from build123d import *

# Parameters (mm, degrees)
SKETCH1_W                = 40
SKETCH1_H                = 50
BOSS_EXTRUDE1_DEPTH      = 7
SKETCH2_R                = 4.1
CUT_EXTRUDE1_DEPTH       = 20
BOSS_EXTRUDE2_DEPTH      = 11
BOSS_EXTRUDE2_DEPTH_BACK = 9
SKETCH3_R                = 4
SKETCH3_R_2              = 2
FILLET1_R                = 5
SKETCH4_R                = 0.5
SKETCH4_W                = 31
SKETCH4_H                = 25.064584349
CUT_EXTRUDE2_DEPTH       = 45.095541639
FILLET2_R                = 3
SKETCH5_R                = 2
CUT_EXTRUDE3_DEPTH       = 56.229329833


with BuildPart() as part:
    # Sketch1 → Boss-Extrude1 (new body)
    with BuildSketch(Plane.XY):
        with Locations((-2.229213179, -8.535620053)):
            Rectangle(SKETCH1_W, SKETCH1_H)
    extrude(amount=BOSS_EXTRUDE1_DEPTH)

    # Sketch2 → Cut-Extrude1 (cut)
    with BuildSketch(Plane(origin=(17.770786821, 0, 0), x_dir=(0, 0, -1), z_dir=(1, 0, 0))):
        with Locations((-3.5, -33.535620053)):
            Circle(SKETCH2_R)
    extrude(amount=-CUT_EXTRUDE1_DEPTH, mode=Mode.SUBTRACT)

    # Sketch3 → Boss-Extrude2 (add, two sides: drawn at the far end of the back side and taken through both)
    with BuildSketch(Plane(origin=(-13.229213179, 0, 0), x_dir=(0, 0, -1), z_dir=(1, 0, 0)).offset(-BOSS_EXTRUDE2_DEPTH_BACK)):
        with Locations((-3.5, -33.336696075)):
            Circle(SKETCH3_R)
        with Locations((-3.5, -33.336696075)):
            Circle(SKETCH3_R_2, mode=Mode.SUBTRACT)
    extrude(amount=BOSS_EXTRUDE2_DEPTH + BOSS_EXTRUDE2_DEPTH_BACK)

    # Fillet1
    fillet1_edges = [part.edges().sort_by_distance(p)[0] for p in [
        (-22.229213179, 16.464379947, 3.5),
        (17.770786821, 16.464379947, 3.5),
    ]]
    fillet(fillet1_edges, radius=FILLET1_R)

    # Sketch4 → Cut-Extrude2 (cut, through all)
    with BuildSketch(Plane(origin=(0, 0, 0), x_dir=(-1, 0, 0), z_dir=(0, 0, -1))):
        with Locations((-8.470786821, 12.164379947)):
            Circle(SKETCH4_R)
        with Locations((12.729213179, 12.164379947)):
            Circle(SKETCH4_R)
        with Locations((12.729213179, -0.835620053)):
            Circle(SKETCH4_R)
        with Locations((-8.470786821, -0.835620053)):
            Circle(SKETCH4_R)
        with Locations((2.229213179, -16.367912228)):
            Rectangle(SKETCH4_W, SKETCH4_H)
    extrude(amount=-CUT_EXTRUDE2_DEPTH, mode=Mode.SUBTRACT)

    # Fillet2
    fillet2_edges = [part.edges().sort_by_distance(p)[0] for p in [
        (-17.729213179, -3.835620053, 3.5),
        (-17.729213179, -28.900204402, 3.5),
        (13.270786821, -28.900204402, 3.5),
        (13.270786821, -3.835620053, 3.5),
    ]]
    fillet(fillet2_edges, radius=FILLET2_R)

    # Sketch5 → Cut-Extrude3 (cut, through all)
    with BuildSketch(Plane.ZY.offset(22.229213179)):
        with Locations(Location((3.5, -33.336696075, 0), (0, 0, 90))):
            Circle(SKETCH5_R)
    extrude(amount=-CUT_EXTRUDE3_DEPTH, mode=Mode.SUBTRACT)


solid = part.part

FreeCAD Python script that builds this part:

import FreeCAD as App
import Part
import Sketcher

V = App.Vector
Q = App.Units.Quantity


def edges_at(feature, points):
    """Names of the edges that pass closest to the given points."""
    edges = feature.Shape.Edges
    near = lambda p: min(range(len(edges)), key=lambda i: edges[i].distToShape(Part.Vertex(*p))[0])
    return sorted({f"Edge{near(p) + 1}" for p in points})


def add_polygon(sketch, points):
    """Adds a closed chain of lines whose ends are joined by coincident constraints."""
    first, n = sketch.GeometryCount, len(points)
    for a, b in zip(points, points[1:] + points[:1]):
        sketch.addGeometry(Part.LineSegment(App.Vector(*a, 0), App.Vector(*b, 0)), False)
    for i in range(n):
        sketch.addConstraint(Sketcher.Constraint("Coincident", first + i, 2, first + (i + 1) % n, 1))

doc = App.newDocument("Part")
body = doc.addObject("PartDesign::Body", "Body")

# Sketch on XY plane
sketch1 = body.newObject("Sketcher::SketchObject", "Sketch")
sketch1.AttachmentSupport = (doc.getObject("XY_Plane"), [""])
sketch1.MapMode = "FlatFace"
add_polygon(sketch1, [(-22, 16), (-22, -34), (18, -34), (18, 16)])  # lines 0-3
sketch1.addConstraint(Sketcher.Constraint("Vertical", 0))
sketch1.addConstraint(Sketcher.Constraint("Horizontal", 1))
sketch1.addConstraint(Sketcher.Constraint("Vertical", 2))
sketch1.addConstraint(Sketcher.Constraint("Horizontal", 3))
sketch1.addConstraint(Sketcher.Constraint("DistanceX", 1, 1, 1, 2, Q("40 mm")))
sketch1.addConstraint(Sketcher.Constraint("DistanceY", 0, 2, 0, 1, Q("50 mm")))
sketch1.addConstraint(Sketcher.Constraint("DistanceY", 0, 2, -1, 1, Q("33.53562 mm")))
sketch1.addConstraint(Sketcher.Constraint("DistanceX", 0, 2, -1, 1, Q("22.229213 mm")))
pad1 = body.newObject("PartDesign::Pad", "Pad")
pad1.Profile = sketch1
pad1.Length = 7

# Sketch on YZ plane
sketch2 = body.newObject("Sketcher::SketchObject", "Sketch001")
sketch2.AttachmentSupport = (doc.getObject("YZ_Plane"), [""])
sketch2.MapMode = "FlatFace"
sketch2.AttachmentOffset = App.Placement(V(0, 0, 17.770787), App.Rotation())
sketch2.addGeometry(Part.Circle(V(-33.5, 3.5, 0), V(0, 0, 1), 4.1), False)
sketch2.addConstraint(Sketcher.Constraint("Diameter", 0, Q("8.2 mm")))
sketch2.addConstraint(Sketcher.Constraint("DistanceY", -1, 1, 0, 3, Q("3.5 mm")))
sketch2.addConstraint(Sketcher.Constraint("DistanceX", 0, 3, -1, 1, Q("33.53562 mm")))
pocket1 = body.newObject("PartDesign::Pocket", "Pocket")
pocket1.Profile = sketch2
pocket1.Length = 20

# Sketch on YZ plane
sketch3 = body.newObject("Sketcher::SketchObject", "Sketch002")
sketch3.AttachmentSupport = (doc.getObject("YZ_Plane"), [""])
sketch3.MapMode = "FlatFace"
sketch3.AttachmentOffset = App.Placement(V(0, 0, -13.229213), App.Rotation())
sketch3.addGeometry(Part.Circle(V(-33.3, 3.5, 0), V(0, 0, 1), 4), False)
sketch3.addGeometry(Part.Circle(V(-33.3, 3.5, 0), V(0, 0, 1), 2), False)
sketch3.addConstraint(Sketcher.Constraint("Coincident", 1, 3, 0, 3))
sketch3.addConstraint(Sketcher.Constraint("Diameter", 0, Q("8 mm")))
sketch3.addConstraint(Sketcher.Constraint("Diameter", 1, Q("4 mm")))
sketch3.addConstraint(Sketcher.Constraint("DistanceY", -1, 1, 0, 3, Q("3.5 mm")))
sketch3.addConstraint(Sketcher.Constraint("DistanceX", 0, 3, -1, 1, Q("33.336696 mm")))
pad2 = body.newObject("PartDesign::Pad", "Pad001")
pad2.Profile = sketch3
pad2.Type = "TwoLengths"
pad2.Length = 11
pad2.Length2 = 9
doc.recompute()

fillet = body.newObject("PartDesign::Fillet", "Fillet")
fillet.Base = (pad2, edges_at(pad2, [(-22.229, 16.464, 3.5), (17.771, 16.464, 3.5)]))
fillet.Radius = 5

# Sketch on XY plane
sketch4 = body.newObject("Sketcher::SketchObject", "Sketch003")
sketch4.AttachmentSupport = (doc.getObject("XY_Plane"), [""])
sketch4.MapMode = "FlatFace"
sketch4.addGeometry(Part.Circle(V(8.5, 12.2, 0), V(0, 0, 1), 0.5), False)  # 0
sketch4.addGeometry(Part.Circle(V(-12.7, 12.2, 0), V(0, 0, 1), 0.5), False)  # 1
sketch4.addGeometry(Part.Circle(V(-12.7, -0.8, 0), V(0, 0, 1), 0.5), False)  # 2
sketch4.addGeometry(Part.Circle(V(8.5, -0.8, 0), V(0, 0, 1), 0.5), False)  # 3
add_polygon(sketch4, [(13.3, -3.8), (13.3, -28.9), (-17.7, -28.9), (-17.7, -3.8)])  # lines 4-7
sketch4.addConstraint(Sketcher.Constraint("Vertical", 4))
sketch4.addConstraint(Sketcher.Constraint("Horizontal", 5))
sketch4.addConstraint(Sketcher.Constraint("Vertical", 6))
sketch4.addConstraint(Sketcher.Constraint("Horizontal", 7))
sketch4.addConstraint(Sketcher.Constraint("Equal", 0, 1))
sketch4.addConstraint(Sketcher.Constraint("Equal", 1, 2))
sketch4.addConstraint(Sketcher.Constraint("Equal", 2, 3))
sketch4.addConstraint(Sketcher.Constraint("Horizontal", 0, 3, 1, 3))
sketch4.addConstraint(Sketcher.Constraint("Horizontal", 2, 3, 3, 3))
sketch4.addConstraint(Sketcher.Constraint("Vertical", 1, 3, 2, 3))
sketch4.addConstraint(Sketcher.Constraint("Vertical", 0, 3, 3, 3))
sketch4.addConstraint(Sketcher.Constraint("Diameter", 0, Q("1 mm")))
sketch4.addConstraint(Sketcher.Constraint("DistanceX", 5, 2, 5, 1, Q("31 mm")))
sketch4.addConstraint(Sketcher.Constraint("DistanceY", 2, 3, 1, 3, Q("13 mm")))
sketch4.addConstraint(Sketcher.Constraint("DistanceX", 2, 3, 4, 2, Q("26 mm")))
sketch4.addConstraint(Sketcher.Constraint("DistanceY", 6, 2, 2, 3, Q("3 mm")))
sketch4.addConstraint(Sketcher.Constraint("DistanceX", 1, 3, 0, 3, Q("21.2 mm")))
sketch4.addConstraint(Sketcher.Constraint("DistanceY", 4, 2, 4, 1, Q("25.064584 mm")))
sketch4.addConstraint(Sketcher.Constraint("DistanceY", -1, 1, 0, 3, Q("12.16438 mm")))
sketch4.addConstraint(Sketcher.Constraint("DistanceX", -1, 1, 0, 3, Q("8.470787 mm")))
pocket2 = body.newObject("PartDesign::Pocket", "Pocket001")
pocket2.Profile = sketch4
pocket2.Type = "ThroughAll"
pocket2.Reversed = True
doc.recompute()

fillet2 = body.newObject("PartDesign::Fillet", "Fillet001")
fillet2.Base = (pocket2, edges_at(pocket2, [
    (-17.729, -3.836, 3.5),
    (-17.729, -28.9, 3.5),
    (13.271, -28.9, 3.5),
    (13.271, -3.836, 3.5),
]))
fillet2.Radius = 3

# Sketch on YZ plane
sketch5 = body.newObject("Sketcher::SketchObject", "Sketch004")
sketch5.AttachmentSupport = (doc.getObject("YZ_Plane"), [""])
sketch5.MapMode = "FlatFace"
sketch5.AttachmentOffset = App.Placement(V(0, 0, -22.229213), App.Rotation())
sketch5.addGeometry(Part.Circle(V(-33.3, 3.5, 0), V(0, 0, 1), 2), False)
sketch5.addConstraint(Sketcher.Constraint("Diameter", 0, Q("4 mm")))
sketch5.addConstraint(Sketcher.Constraint("DistanceY", -1, 1, 0, 3, Q("3.5 mm")))
sketch5.addConstraint(Sketcher.Constraint("DistanceX", 0, 3, -1, 1, Q("33.336696 mm")))
pocket3 = body.newObject("PartDesign::Pocket", "Pocket002")
pocket3.Profile = sketch5
pocket3.Type = "ThroughAll"
pocket3.Reversed = True

doc.recompute()
